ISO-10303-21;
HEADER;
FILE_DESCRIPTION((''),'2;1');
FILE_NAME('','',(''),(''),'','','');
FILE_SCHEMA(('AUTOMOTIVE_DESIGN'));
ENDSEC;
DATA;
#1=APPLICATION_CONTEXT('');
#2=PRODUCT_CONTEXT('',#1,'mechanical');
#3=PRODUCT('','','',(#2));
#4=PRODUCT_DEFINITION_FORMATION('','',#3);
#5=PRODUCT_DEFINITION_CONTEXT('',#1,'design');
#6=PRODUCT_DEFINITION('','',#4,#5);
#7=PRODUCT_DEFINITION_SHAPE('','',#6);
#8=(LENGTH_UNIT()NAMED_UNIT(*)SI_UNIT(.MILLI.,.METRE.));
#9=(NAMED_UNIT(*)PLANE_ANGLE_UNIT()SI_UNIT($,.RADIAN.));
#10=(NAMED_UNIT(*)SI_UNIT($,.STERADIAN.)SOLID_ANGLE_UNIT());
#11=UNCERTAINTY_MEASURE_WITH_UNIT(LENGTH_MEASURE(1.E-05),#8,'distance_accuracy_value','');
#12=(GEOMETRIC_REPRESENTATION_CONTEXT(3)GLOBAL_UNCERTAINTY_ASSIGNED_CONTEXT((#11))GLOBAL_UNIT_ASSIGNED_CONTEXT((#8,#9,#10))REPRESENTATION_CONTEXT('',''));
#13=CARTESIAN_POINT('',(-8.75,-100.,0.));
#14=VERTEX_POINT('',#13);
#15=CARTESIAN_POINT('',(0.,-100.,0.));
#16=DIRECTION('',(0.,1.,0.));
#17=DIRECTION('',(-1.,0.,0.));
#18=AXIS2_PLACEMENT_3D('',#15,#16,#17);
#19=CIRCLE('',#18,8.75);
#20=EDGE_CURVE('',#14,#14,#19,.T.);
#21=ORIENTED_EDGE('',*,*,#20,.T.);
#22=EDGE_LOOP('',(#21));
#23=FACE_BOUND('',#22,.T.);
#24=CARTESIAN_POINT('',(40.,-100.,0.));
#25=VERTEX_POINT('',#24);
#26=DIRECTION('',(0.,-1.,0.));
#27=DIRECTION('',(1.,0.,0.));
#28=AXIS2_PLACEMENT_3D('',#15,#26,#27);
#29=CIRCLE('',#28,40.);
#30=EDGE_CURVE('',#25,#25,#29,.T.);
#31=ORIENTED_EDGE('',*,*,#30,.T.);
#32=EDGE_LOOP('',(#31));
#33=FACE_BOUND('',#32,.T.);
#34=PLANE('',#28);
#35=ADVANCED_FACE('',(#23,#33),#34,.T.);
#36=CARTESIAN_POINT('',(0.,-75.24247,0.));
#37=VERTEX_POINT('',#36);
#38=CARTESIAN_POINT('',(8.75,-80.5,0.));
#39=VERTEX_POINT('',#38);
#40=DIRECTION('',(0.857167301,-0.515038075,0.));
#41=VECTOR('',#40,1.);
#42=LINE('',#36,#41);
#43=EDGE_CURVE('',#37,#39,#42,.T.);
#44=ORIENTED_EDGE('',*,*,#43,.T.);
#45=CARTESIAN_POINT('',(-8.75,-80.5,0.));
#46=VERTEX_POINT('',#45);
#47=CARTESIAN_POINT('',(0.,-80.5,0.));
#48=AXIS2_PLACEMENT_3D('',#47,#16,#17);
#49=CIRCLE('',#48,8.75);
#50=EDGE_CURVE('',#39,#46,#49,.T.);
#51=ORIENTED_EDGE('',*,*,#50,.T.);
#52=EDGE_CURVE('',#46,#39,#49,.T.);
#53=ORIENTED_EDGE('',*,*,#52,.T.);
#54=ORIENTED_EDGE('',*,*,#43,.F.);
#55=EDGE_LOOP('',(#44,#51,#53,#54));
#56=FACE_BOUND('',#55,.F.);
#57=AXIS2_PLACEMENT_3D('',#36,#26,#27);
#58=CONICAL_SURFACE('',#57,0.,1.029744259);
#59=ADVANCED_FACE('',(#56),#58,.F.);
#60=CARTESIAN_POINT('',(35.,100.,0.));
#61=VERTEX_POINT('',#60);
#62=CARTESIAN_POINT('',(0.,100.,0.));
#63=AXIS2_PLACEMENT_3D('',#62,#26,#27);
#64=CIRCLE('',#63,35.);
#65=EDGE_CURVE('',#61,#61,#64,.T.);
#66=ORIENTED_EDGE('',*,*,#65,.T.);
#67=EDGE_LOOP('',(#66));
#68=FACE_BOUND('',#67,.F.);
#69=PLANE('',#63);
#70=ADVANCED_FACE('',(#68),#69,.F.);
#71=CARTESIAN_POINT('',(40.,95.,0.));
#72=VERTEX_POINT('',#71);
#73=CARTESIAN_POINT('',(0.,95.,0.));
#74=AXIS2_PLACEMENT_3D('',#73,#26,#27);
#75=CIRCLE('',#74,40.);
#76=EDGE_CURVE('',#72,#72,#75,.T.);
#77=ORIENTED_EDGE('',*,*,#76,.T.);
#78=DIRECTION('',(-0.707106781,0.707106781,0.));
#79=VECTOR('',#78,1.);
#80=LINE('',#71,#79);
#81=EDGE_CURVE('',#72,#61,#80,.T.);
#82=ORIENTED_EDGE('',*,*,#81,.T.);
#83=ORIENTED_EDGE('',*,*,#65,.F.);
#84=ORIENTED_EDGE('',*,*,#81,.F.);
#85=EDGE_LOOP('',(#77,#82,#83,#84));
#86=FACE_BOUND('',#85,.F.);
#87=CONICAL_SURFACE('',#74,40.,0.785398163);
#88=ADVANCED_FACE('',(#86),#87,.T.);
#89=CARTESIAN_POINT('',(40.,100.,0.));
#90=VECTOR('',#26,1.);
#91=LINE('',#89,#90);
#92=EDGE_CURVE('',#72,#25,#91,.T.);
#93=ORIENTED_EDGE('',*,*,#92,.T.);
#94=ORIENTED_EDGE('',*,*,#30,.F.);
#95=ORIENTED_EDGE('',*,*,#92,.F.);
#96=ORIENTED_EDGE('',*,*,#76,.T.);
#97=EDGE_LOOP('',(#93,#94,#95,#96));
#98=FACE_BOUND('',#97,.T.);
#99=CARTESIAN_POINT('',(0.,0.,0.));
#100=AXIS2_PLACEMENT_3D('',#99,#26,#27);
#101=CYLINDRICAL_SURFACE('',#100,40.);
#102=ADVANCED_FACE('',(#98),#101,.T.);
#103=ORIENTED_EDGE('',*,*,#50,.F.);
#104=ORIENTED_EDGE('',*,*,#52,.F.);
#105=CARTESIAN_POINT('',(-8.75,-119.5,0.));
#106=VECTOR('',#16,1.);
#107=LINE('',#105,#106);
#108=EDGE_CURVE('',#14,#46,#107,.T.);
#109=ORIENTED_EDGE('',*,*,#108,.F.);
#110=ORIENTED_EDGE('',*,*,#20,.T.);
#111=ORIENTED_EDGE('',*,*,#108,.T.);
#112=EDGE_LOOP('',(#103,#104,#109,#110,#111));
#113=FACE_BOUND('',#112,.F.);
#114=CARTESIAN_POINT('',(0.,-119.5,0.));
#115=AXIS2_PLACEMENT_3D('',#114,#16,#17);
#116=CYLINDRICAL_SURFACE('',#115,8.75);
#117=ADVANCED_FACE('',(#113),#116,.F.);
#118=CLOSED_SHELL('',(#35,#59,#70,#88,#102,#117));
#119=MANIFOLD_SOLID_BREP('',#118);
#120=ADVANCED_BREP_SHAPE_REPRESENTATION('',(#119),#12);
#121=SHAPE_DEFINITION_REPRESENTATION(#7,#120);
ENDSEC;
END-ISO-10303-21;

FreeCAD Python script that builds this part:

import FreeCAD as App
import Part
import Sketcher
from FreeCAD import Vector
Q = App.Units.Quantity


def edges_at(feature, points):
    """Names of the edges that pass closest to the given points."""
    edges = feature.Shape.Edges
    near = lambda p: min(range(len(edges)), key=lambda i: edges[i].distToShape(Part.Vertex(*p))[0])
    return sorted({f"Edge{near(p) + 1}" for p in points})

doc = App.newDocument("Part")
body = doc.addObject("PartDesign::Body", "Body")

sketch1 = body.newObject("Sketcher::SketchObject", "Sketch")
sketch1.AttachmentSupport = (doc.getObject("XZ_Plane"), [""])
sketch1.MapMode = "FlatFace"
sketch1.addGeometry(Part.Circle(Vector(0, 0, 0), Vector(0, 0, 1), 40), False)
sketch1.addConstraint([
    Sketcher.Constraint("Coincident", 0, 3, -1, 1),
    Sketcher.Constraint("Diameter", 0, Q("80 mm")),
])
pad1 = body.newObject("PartDesign::Pad", "Pad")
pad1.Profile = sketch1
pad1.Length = 200
pad1.Midplane = True
doc.recompute()

chamfer = body.newObject("PartDesign::Chamfer", "Chamfer")
chamfer.Base = (pad1, edges_at(pad1, [(-40, 100, 0)]))
chamfer.Size = 5

sketch2 = body.newObject("Sketcher::SketchObject", "Sketch001")
sketch2.AttachmentSupport = (doc.getObject("XZ_Plane"), [""])
sketch2.MapMode = "FlatFace"
sketch2.AttachmentOffset = App.Placement(Vector(0, 0, 100), App.Rotation())
sketch2.addGeometry(Part.Circle(Vector(0, 0, 0), Vector(0, 0, 1), 9), False)
sketch2.addConstraint([
    Sketcher.Constraint("Coincident", 0, 3, -1, 1),
    Sketcher.Constraint("Diameter", 0, Q("17.5 mm")),
])
doc.recompute()
hole = body.newObject("PartDesign::Hole", "Hole")
hole.Profile = sketch2
hole.ThreadType = "None"
hole.Diameter = 17.5
hole.DepthType = "Dimension"
hole.Depth = 19.5
hole.DrillPoint = "Angled"
hole.DrillPointAngle = 118

doc.recompute()
